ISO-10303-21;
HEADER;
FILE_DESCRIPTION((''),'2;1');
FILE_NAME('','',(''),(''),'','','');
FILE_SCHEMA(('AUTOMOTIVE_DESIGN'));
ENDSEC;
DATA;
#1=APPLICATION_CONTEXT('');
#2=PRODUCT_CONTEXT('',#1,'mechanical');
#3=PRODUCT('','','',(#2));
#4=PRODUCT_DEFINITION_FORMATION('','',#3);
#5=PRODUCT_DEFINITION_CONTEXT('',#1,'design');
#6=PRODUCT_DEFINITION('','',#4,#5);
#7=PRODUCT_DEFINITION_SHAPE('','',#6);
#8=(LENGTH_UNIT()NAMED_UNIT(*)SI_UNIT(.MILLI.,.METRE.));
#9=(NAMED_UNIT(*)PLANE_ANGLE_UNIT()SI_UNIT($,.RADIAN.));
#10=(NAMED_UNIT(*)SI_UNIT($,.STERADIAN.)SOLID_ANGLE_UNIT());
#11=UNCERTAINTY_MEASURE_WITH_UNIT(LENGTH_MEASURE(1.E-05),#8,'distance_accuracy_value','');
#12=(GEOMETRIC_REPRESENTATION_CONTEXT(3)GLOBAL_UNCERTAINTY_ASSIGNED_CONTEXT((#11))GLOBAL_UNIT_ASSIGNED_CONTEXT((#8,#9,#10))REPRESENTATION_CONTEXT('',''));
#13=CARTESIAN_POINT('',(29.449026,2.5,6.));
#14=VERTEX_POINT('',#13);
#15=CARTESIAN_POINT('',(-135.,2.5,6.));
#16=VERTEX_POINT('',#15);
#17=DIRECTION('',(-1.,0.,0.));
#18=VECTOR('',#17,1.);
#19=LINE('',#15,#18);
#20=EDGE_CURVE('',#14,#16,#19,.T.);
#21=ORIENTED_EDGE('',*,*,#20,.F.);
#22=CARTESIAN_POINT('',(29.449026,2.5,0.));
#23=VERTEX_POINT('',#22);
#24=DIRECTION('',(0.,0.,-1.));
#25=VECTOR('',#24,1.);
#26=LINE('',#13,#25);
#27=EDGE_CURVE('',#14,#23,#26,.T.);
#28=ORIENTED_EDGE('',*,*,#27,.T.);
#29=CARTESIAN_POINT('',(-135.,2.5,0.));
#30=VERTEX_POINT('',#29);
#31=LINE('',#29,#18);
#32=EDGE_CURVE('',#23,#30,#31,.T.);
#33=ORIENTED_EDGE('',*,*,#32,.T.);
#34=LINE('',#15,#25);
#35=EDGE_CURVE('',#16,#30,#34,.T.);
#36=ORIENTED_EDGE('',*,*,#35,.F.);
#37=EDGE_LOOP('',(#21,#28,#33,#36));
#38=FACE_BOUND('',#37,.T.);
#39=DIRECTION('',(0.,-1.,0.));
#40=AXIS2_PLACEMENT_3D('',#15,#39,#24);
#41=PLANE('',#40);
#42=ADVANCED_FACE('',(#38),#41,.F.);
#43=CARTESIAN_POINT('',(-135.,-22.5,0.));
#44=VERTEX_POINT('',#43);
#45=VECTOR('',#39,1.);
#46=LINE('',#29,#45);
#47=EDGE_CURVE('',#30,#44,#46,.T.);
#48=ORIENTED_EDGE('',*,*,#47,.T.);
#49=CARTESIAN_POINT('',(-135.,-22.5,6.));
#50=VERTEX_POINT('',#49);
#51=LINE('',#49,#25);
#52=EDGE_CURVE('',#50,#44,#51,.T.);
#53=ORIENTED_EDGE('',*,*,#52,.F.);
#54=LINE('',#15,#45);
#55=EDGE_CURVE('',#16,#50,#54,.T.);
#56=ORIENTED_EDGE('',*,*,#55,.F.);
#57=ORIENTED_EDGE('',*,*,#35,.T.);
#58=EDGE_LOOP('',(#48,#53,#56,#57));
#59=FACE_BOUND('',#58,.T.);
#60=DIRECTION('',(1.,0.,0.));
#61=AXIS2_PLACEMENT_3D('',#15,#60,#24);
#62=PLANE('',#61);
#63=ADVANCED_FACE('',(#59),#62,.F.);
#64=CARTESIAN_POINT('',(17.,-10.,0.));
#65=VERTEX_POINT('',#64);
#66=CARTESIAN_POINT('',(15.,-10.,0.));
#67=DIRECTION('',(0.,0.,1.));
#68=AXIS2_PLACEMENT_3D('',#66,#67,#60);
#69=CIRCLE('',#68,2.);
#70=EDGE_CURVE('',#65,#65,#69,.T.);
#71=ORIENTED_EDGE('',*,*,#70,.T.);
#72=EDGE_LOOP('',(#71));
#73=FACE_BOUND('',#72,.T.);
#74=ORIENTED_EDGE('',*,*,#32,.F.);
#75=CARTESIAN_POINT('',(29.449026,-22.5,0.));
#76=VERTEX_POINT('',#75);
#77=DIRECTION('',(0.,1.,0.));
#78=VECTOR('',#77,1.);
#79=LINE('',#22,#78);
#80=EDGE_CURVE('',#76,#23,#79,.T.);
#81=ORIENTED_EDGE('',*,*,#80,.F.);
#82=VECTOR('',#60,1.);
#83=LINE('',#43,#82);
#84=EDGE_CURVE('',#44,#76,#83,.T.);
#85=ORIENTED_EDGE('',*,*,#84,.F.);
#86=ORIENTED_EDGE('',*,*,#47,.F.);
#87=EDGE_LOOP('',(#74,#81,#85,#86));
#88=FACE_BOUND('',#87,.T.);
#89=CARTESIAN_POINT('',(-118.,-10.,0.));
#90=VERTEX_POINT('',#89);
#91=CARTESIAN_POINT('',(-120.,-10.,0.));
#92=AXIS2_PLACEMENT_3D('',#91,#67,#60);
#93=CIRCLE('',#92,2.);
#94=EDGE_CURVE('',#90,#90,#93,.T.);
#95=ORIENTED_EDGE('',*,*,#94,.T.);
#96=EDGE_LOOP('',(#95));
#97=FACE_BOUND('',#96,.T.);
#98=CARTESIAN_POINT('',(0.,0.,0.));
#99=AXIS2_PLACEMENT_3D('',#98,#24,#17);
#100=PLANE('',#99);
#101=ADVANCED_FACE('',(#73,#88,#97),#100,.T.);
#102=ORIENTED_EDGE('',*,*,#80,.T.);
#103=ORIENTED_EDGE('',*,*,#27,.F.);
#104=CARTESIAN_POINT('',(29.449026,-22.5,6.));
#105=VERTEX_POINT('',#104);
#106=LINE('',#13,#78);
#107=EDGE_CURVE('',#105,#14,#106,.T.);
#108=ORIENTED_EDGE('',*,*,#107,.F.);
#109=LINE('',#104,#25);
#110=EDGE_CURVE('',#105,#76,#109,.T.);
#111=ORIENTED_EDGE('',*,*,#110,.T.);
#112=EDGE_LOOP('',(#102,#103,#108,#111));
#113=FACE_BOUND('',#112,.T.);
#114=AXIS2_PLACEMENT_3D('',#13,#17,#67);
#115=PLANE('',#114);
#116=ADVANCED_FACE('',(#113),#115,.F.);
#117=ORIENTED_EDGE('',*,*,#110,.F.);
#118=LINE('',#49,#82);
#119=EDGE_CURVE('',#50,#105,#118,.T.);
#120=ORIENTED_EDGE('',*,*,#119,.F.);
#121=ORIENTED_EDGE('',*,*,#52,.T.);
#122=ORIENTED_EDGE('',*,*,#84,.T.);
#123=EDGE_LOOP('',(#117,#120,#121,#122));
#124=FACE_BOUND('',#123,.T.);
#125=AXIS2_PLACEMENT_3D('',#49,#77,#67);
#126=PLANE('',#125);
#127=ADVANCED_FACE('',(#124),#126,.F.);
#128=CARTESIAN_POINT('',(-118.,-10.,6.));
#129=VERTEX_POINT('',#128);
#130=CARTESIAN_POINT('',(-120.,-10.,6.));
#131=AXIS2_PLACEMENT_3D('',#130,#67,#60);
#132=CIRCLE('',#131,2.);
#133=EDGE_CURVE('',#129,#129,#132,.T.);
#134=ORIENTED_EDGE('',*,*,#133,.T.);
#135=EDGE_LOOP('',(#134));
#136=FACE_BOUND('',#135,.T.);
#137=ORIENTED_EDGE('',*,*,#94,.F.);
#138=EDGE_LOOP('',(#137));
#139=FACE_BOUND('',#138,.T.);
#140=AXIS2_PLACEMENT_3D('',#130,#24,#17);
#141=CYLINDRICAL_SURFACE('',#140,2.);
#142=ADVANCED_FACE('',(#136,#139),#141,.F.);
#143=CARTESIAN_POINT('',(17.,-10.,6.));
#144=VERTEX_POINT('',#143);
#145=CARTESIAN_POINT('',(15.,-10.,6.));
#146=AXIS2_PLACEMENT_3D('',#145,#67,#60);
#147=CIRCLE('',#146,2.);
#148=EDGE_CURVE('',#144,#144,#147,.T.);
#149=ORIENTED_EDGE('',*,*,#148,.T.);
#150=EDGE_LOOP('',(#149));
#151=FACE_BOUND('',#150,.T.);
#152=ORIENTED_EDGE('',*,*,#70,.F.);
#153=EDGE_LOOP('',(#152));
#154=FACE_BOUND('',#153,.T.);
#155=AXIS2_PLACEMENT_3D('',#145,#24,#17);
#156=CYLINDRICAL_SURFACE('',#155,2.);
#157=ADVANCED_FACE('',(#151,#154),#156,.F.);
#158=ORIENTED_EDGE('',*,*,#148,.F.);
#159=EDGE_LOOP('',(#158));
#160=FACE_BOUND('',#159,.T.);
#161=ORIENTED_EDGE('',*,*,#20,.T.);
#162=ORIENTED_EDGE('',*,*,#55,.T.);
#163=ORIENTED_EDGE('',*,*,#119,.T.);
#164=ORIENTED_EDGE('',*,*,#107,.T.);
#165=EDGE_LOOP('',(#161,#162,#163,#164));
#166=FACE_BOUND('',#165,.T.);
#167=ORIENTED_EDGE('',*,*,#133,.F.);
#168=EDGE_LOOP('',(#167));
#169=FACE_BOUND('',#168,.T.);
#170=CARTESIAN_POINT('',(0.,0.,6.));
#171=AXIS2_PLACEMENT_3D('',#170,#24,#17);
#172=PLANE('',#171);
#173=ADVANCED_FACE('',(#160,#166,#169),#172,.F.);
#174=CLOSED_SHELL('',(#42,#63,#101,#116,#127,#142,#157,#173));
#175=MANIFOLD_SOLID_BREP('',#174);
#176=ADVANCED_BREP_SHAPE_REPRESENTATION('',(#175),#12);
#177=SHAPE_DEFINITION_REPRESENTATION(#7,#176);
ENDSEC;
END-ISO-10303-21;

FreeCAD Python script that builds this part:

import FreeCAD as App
import Part
import Sketcher
from FreeCAD import Vector
Q = App.Units.Quantity

doc = App.newDocument("Part")
body = doc.addObject("PartDesign::Body", "Body")

sketch1 = body.newObject("Sketcher::SketchObject", "Sketch")
sketch1.AttachmentSupport = (doc.getObject("XY_Plane"), [""])
sketch1.MapMode = "FlatFace"
sketch1.addGeometry([
    Part.LineSegment(Vector(29.449026, -22.5, 0), Vector(29.449026, 2.5, 0)),
    Part.LineSegment(Vector(29.449026, 2.5, 0), Vector(-135, 2.5, 0)),
    Part.LineSegment(Vector(-135, 2.5, 0), Vector(-135, -22.5, 0)),
    Part.LineSegment(Vector(-135, -22.5, 0), Vector(29.449026, -22.5, 0)),
    Part.Circle(Vector(15, -10, 0), Vector(0, 0, 1), 2),
    Part.Circle(Vector(-120, -10, 0), Vector(0, 0, 1), 2),
], False)
sketch1.addConstraint([
    Sketcher.Constraint("Coincident", 0, 2, 1, 1),
    Sketcher.Constraint("Coincident", 1, 2, 2, 1),
    Sketcher.Constraint("Coincident", 2, 2, 3, 1),
    Sketcher.Constraint("Coincident", 3, 2, 0, 1),
    Sketcher.Constraint("Vertical", 0),
    Sketcher.Constraint("Horizontal", 1),
    Sketcher.Constraint("Vertical", 2),
    Sketcher.Constraint("Horizontal", 3),
    Sketcher.Constraint("Equal", 4, 5),
    Sketcher.Constraint("Horizontal", 4, 3, 5, 3),
    Sketcher.Constraint("Diameter", 4, Q("4 mm")),
    Sketcher.Constraint("DistanceY", 0, 1, 0, 2, Q("25 mm")),
    Sketcher.Constraint("DistanceX", -1, 1, 4, 3, Q("15 mm")),
    Sketcher.Constraint("DistanceY", 4, 3, -1, 1, Q("10 mm")),
    Sketcher.Constraint("DistanceX", 5, 3, -1, 1, Q("120 mm")),
    Sketcher.Constraint("DistanceX", 1, 2, -1, 1, Q("135 mm")),
    Sketcher.Constraint("DistanceY", -1, 1, 0, 2, Q("2.5 mm")),
    Sketcher.Constraint("DistanceX", 1, 2, 1, 1, Q("164.449026 mm")),
])
pad1 = body.newObject("PartDesign::Pad", "Pad")
pad1.Profile = sketch1
pad1.Length = 6

doc.recompute()
